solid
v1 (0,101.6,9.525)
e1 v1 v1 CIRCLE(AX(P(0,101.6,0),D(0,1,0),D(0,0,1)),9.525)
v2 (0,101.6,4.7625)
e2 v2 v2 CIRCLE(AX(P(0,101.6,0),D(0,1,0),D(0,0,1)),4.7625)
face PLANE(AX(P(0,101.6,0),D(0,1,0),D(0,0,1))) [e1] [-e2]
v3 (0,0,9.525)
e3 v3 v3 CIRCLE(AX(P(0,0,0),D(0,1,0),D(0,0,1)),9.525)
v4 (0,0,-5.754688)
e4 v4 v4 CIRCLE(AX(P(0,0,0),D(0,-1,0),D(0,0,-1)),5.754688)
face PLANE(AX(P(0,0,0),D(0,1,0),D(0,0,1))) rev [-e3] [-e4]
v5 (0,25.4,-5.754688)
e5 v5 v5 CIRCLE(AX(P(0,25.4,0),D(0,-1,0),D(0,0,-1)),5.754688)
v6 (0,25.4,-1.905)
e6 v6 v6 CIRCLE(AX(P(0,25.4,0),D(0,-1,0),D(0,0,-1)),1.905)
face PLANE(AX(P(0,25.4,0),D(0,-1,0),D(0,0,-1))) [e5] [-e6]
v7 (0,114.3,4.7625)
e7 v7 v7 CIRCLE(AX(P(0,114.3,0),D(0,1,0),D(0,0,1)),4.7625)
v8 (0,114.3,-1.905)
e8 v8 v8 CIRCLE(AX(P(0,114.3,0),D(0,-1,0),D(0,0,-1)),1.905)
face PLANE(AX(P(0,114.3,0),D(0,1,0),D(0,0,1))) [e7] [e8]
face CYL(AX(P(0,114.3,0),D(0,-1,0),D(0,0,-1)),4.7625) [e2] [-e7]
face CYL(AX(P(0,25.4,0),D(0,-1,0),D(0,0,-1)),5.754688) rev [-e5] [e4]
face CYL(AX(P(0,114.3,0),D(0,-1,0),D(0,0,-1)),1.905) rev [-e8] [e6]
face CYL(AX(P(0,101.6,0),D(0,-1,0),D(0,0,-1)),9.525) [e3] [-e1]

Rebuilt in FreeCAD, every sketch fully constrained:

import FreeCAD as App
import Part
import Sketcher
Q = App.Units.Quantity

doc = App.newDocument("Part")
body = doc.addObject("PartDesign::Body", "Body")

# Sketch on XZ plane
sketch1 = body.newObject("Sketcher::SketchObject", "Sketch")
sketch1.AttachmentSupport = (doc.getObject("XZ_Plane"), [""])
sketch1.MapMode = "FlatFace"
sketch1.addGeometry(Part.Circle(App.Vector(0, 0, 0), App.Vector(0, 0, 1), 9.525), False)
sketch1.addConstraint(Sketcher.Constraint("Coincident", 0, 3, -1, 1))
sketch1.addConstraint(Sketcher.Constraint("Diameter", 0, Q("0.75 in")))
pad1 = body.newObject("PartDesign::Pad", "Pad")
pad1.Profile = sketch1
pad1.Length = Q("4 in")
pad1.Reversed = True

# Sketch on XZ plane
sketch2 = body.newObject("Sketcher::SketchObject", "Sketch001")
sketch2.AttachmentSupport = (doc.getObject("XZ_Plane"), [""])
sketch2.MapMode = "FlatFace"
sketch2.AttachmentOffset = App.Placement(App.Vector(0, 0, -4 * 25.4), App.Rotation())
sketch2.addGeometry(Part.Circle(App.Vector(0, 0, 0), App.Vector(0, 0, 1), 4.7625), False)
sketch2.addConstraint(Sketcher.Constraint("Coincident", 0, 3, -1, 1))
sketch2.addConstraint(Sketcher.Constraint("Diameter", 0, Q("0.375 in")))
pad2 = body.newObject("PartDesign::Pad", "Pad001")
pad2.Profile = sketch2
pad2.Length = Q("0.5 in")
pad2.Reversed = True

# Sketch on XZ plane
sketch3 = body.newObject("Sketcher::SketchObject", "Sketch002")
sketch3.AttachmentSupport = (doc.getObject("XZ_Plane"), [""])
sketch3.MapMode = "FlatFace"
sketch3.addGeometry(Part.Circle(App.Vector(0, 0, 0), App.Vector(0, 0, 1), 5.754688), False)
sketch3.addConstraint(Sketcher.Constraint("Coincident", 0, 3, -1, 1))
sketch3.addConstraint(Sketcher.Constraint("Diameter", 0, Q("0.453125 in")))
pocket1 = body.newObject("PartDesign::Pocket", "Pocket")
pocket1.Profile = sketch3
pocket1.Length = Q("1 in")

# Sketch on XZ plane
sketch4 = body.newObject("Sketcher::SketchObject", "Sketch003")
sketch4.AttachmentSupport = (doc.getObject("XZ_Plane"), [""])
sketch4.MapMode = "FlatFace"
sketch4.AttachmentOffset = App.Placement(App.Vector(0, 0, -1 * 25.4), App.Rotation())
sketch4.addGeometry(Part.Circle(App.Vector(0, 0, 0), App.Vector(0, 0, 1), 1.905), False)
sketch4.addConstraint(Sketcher.Constraint("Coincident", 0, 3, -1, 1))
sketch4.addConstraint(Sketcher.Constraint("Diameter", 0, Q("0.15 in")))
pocket2 = body.newObject("PartDesign::Pocket", "Pocket001")
pocket2.Profile = sketch4
pocket2.Type = "ThroughAll"

doc.recompute()
